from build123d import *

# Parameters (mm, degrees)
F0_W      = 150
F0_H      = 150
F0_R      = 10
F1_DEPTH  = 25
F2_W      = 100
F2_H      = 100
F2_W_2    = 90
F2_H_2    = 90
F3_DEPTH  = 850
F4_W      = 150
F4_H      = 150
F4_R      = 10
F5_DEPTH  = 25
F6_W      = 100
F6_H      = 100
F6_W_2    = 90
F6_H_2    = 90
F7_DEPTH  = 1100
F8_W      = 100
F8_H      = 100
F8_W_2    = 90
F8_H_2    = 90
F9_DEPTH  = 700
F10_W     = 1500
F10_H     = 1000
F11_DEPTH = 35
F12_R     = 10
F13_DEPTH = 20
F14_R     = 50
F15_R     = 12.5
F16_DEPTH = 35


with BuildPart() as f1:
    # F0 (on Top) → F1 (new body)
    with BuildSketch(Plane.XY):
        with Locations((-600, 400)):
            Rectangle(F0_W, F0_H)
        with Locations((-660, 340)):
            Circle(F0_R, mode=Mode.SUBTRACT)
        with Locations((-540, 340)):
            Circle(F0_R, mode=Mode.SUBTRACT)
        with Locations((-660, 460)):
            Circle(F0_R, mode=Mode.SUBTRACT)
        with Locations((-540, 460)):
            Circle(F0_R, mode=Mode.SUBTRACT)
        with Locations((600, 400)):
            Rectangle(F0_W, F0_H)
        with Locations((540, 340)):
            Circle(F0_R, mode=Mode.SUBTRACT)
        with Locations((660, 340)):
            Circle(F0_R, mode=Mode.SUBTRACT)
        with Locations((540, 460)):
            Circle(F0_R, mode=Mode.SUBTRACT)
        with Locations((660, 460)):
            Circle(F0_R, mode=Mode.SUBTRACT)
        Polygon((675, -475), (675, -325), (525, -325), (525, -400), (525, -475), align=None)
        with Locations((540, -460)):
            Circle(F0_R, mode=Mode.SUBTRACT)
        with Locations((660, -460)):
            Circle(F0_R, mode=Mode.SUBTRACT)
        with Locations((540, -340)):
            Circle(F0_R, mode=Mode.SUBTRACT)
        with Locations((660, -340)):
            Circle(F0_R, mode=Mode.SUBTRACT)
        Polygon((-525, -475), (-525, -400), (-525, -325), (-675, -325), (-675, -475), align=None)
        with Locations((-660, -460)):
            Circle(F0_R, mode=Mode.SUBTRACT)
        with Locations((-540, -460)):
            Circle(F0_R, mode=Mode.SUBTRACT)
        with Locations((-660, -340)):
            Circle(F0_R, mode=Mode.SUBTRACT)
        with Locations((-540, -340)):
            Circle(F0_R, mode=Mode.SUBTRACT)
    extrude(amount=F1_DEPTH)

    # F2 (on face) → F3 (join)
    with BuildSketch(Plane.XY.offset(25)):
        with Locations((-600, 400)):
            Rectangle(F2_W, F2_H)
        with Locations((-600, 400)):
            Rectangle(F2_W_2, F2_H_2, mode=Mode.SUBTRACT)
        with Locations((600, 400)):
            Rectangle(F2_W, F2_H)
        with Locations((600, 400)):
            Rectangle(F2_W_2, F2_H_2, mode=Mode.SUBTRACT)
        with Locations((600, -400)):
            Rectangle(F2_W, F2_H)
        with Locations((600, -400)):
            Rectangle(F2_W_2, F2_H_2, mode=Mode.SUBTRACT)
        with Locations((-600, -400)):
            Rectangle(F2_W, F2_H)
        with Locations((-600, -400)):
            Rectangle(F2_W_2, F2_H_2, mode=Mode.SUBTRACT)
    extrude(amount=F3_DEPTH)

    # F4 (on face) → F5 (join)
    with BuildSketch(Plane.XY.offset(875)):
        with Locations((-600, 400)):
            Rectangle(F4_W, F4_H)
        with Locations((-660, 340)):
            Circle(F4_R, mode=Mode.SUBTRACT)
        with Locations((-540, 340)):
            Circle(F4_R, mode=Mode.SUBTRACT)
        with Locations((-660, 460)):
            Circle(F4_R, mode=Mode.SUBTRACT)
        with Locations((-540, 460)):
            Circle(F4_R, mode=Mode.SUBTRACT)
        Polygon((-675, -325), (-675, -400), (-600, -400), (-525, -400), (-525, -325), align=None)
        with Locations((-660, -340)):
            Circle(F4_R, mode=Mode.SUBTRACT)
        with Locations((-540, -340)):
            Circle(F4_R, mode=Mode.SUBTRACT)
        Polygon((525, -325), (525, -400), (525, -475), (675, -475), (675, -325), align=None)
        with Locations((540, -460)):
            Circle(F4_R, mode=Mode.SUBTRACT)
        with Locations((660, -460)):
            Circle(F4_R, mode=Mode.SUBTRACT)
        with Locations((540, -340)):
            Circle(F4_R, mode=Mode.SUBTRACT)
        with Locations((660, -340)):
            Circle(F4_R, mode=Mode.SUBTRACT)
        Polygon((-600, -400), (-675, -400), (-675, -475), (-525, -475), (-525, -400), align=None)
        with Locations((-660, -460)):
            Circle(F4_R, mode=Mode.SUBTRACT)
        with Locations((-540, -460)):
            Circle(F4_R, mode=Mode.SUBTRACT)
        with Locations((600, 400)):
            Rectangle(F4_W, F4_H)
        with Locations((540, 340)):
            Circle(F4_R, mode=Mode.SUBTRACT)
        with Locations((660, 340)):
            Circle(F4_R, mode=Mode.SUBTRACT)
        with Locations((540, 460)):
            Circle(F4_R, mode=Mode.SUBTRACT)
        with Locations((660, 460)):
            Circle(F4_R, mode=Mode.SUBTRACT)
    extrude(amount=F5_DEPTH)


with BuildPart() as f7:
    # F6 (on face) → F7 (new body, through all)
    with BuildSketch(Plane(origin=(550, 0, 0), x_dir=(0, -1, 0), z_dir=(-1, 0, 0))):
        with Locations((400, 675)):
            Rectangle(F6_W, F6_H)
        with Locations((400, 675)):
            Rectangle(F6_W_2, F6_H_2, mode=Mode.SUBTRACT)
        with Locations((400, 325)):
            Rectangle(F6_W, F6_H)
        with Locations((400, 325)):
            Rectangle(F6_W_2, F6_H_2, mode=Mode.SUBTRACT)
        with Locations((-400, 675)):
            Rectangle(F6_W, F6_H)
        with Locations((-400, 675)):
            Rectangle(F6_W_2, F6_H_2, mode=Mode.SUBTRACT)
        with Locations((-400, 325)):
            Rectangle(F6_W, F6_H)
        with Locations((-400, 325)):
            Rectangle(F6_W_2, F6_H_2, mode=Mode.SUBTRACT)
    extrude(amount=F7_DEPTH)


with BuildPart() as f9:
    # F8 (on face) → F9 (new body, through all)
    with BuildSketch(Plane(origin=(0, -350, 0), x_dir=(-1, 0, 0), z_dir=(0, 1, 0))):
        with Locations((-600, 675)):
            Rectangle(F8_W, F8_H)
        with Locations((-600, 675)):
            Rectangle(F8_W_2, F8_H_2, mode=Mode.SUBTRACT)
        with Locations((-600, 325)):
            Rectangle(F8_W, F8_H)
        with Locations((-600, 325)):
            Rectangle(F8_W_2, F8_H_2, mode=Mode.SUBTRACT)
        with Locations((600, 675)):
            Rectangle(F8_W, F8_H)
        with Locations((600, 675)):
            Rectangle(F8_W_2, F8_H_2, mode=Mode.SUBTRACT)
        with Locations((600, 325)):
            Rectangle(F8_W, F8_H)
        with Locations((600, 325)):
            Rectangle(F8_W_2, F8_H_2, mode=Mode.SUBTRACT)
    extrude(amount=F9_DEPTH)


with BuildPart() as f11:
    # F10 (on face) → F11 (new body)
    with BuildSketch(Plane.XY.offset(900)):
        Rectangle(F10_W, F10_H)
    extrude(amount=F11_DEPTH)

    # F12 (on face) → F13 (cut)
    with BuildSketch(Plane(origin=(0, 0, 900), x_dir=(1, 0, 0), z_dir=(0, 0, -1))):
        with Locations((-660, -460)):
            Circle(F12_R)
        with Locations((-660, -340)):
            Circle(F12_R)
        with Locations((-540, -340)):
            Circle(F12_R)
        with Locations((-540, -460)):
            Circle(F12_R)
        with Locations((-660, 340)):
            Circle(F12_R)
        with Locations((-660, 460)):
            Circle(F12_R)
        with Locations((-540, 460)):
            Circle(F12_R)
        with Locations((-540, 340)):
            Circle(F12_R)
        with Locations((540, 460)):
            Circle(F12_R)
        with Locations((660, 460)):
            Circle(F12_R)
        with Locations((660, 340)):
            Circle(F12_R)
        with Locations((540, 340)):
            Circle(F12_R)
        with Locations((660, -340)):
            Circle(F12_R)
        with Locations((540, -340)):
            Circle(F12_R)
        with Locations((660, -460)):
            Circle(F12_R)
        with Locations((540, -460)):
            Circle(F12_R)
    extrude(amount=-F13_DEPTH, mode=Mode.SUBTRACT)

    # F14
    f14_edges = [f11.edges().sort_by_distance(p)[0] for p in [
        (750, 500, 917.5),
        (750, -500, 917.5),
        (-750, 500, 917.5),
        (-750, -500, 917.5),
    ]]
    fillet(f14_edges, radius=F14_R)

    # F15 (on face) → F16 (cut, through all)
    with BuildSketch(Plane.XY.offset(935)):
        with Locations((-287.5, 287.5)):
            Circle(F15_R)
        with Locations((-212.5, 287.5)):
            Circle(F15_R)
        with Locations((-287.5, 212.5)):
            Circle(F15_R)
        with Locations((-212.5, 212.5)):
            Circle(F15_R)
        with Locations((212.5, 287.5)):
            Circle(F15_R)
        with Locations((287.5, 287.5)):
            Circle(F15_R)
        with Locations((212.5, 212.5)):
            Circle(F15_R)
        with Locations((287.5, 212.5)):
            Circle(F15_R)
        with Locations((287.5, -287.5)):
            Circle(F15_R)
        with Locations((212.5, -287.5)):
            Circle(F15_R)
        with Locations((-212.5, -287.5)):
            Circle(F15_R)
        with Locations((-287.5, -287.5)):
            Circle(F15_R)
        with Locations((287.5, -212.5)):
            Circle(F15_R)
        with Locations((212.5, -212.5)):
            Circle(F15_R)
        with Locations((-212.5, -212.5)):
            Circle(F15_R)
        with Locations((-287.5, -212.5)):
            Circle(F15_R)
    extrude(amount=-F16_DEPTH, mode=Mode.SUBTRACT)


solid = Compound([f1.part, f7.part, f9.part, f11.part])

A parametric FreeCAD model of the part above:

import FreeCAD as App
import Part
import Sketcher
from FreeCAD import Vector
Q = App.Units.Quantity


def edges_at(feature, points):
    """Names of the edges that pass closest to the given points."""
    edges = feature.Shape.Edges
    near = lambda p: min(range(len(edges)), key=lambda i: edges[i].distToShape(Part.Vertex(*p))[0])
    return sorted({f"Edge{near(p) + 1}" for p in points})


def add_polygon(sketch, points):
    """Adds a closed chain of lines whose ends are joined by coincident constraints."""
    first, n = sketch.GeometryCount, len(points)
    for a, b in zip(points, points[1:] + points[:1]):
        sketch.addGeometry(Part.LineSegment(App.Vector(*a, 0), App.Vector(*b, 0)), False)
    for i in range(n):
        sketch.addConstraint(Sketcher.Constraint("Coincident", first + i, 2, first + (i + 1) % n, 1))

doc = App.newDocument("Part")
body = doc.addObject("PartDesign::Body", "Body")
body.AllowCompound = True

# Sketch on XY plane
sketch1 = doc.addObject("Sketcher::SketchObject", "Sketch")
body.addObject(sketch1)
sketch1.AttachmentSupport = (doc.XY_Plane, [""])
sketch1.MapMode = "FlatFace"
add_polygon(sketch1, [(-675, 475), (-675, 325), (-525, 325), (-525, 475)])  # lines 0-3
sketch1.addGeometry(Part.Circle(Vector(-660, 340, 0), Vector(0, 0, 1), 10), False)  # 4
sketch1.addGeometry(Part.Circle(Vector(-540, 340, 0), Vector(0, 0, 1), 10), False)  # 5
sketch1.addGeometry(Part.Circle(Vector(-660, 460, 0), Vector(0, 0, 1), 10), False)  # 6
sketch1.addGeometry(Part.Circle(Vector(-540, 460, 0), Vector(0, 0, 1), 10), False)  # 7
add_polygon(sketch1, [(525, 475), (525, 325), (675, 325), (675, 475)])  # lines 8-11
sketch1.addGeometry(Part.Circle(Vector(540, 340, 0), Vector(0, 0, 1), 10), False)  # 12
sketch1.addGeometry(Part.Circle(Vector(660, 340, 0), Vector(0, 0, 1), 10), False)  # 13
sketch1.addGeometry(Part.Circle(Vector(540, 460, 0), Vector(0, 0, 1), 10), False)  # 14
sketch1.addGeometry(Part.Circle(Vector(660, 460, 0), Vector(0, 0, 1), 10), False)  # 15
add_polygon(sketch1, [(675, -475), (675, -325), (525, -325), (525, -475)])  # lines 16-19
sketch1.addGeometry(Part.Circle(Vector(540, -460, 0), Vector(0, 0, 1), 10), False)  # 20
sketch1.addGeometry(Part.Circle(Vector(660, -460, 0), Vector(0, 0, 1), 10), False)  # 21
sketch1.addGeometry(Part.Circle(Vector(540, -340, 0), Vector(0, 0, 1), 10), False)  # 22
sketch1.addGeometry(Part.Circle(Vector(660, -340, 0), Vector(0, 0, 1), 10), False)  # 23
add_polygon(sketch1, [(-525, -475), (-525, -325), (-675, -325), (-675, -475)])  # lines 24-27
sketch1.addGeometry(Part.Circle(Vector(-660, -460, 0), Vector(0, 0, 1), 10), False)  # 28
sketch1.addGeometry(Part.Circle(Vector(-540, -460, 0), Vector(0, 0, 1), 10), False)  # 29
sketch1.addGeometry(Part.Circle(Vector(-660, -340, 0), Vector(0, 0, 1), 10), False)  # 30
sketch1.addGeometry(Part.Circle(Vector(-540, -340, 0), Vector(0, 0, 1), 10), False)  # 31
sketch1.addConstraint(Sketcher.Constraint("Vertical", 0))
sketch1.addConstraint(Sketcher.Constraint("Horizontal", 1))
sketch1.addConstraint(Sketcher.Constraint("Vertical", 2))
sketch1.addConstraint(Sketcher.Constraint("Horizontal", 3))
sketch1.addConstraint(Sketcher.Constraint("Vertical", 8))
sketch1.addConstraint(Sketcher.Constraint("Horizontal", 9))
sketch1.addConstraint(Sketcher.Constraint("Vertical", 10))
sketch1.addConstraint(Sketcher.Constraint("Horizontal", 11))
sketch1.addConstraint(Sketcher.Constraint("Vertical", 16))
sketch1.addConstraint(Sketcher.Constraint("Horizontal", 17))
sketch1.addConstraint(Sketcher.Constraint("Vertical", 18))
sketch1.addConstraint(Sketcher.Constraint("Horizontal", 19))
sketch1.addConstraint(Sketcher.Constraint("Vertical", 24))
sketch1.addConstraint(Sketcher.Constraint("Horizontal", 25))
sketch1.addConstraint(Sketcher.Constraint("Vertical", 26))
sketch1.addConstraint(Sketcher.Constraint("Horizontal", 27))
sketch1.addConstraint(Sketcher.Constraint("Equal", 4, 5))
sketch1.addConstraint(Sketcher.Constraint("Equal", 5, 6))
sketch1.addConstraint(Sketcher.Constraint("Equal", 6, 7))
sketch1.addConstraint(Sketcher.Constraint("Equal", 7, 12))
sketch1.addConstraint(Sketcher.Constraint("Equal", 12, 13))
sketch1.addConstraint(Sketcher.Constraint("Equal", 13, 14))
sketch1.addConstraint(Sketcher.Constraint("Equal", 14, 15))
sketch1.addConstraint(Sketcher.Constraint("Equal", 15, 20))
sketch1.addConstraint(Sketcher.Constraint("Equal", 20, 21))
sketch1.addConstraint(Sketcher.Constraint("Equal", 21, 22))
sketch1.addConstraint(Sketcher.Constraint("Equal", 22, 23))
sketch1.addConstraint(Sketcher.Constraint("Equal", 23, 28))
sketch1.addConstraint(Sketcher.Constraint("Equal", 28, 29))
sketch1.addConstraint(Sketcher.Constraint("Equal", 29, 30))
sketch1.addConstraint(Sketcher.Constraint("Equal", 30, 31))
sketch1.addConstraint(Sketcher.Constraint("Symmetric", 7, 3, 20, 3, -1, 1))
sketch1.addConstraint(Sketcher.Constraint("Symmetric", 6, 3, 21, 3, -1, 1))
sketch1.addConstraint(Sketcher.Constraint("Symmetric", 5, 3, 22, 3, -1, 1))
sketch1.addConstraint(Sketcher.Constraint("Symmetric", 4, 3, 23, 3, -1, 1))
sketch1.addConstraint(Sketcher.Constraint("Symmetric", 15, 3, 28, 3, -1, 1))
sketch1.addConstraint(Sketcher.Constraint("Symmetric", 14, 3, 29, 3, -1, 1))
sketch1.addConstraint(Sketcher.Constraint("Symmetric", 13, 3, 30, 3, -1, 1))
sketch1.addConstraint(Sketcher.Constraint("Symmetric", 12, 3, 31, 3, -1, 1))
sketch1.addConstraint(Sketcher.Constraint("Symmetric", 0, 2, 16, 2, -1, 1))
sketch1.addConstraint(Sketcher.Constraint("Symmetric", 2, 2, 18, 2, -1, 1))
sketch1.addConstraint(Sketcher.Constraint("Symmetric", 8, 2, 24, 2, -1, 1))
sketch1.addConstraint(Sketcher.Constraint("Symmetric", 10, 2, 26, 2, -1, 1))
sketch1.addConstraint(Sketcher.Constraint("Symmetric", 5, 3, 12, 3, -2))
sketch1.addConstraint(Sketcher.Constraint("Symmetric", 4, 3, 13, 3, -2))
sketch1.addConstraint(Sketcher.Constraint("Symmetric", 7, 3, 14, 3, -2))
sketch1.addConstraint(Sketcher.Constraint("Symmetric", 6, 3, 15, 3, -2))
sketch1.addConstraint(Sketcher.Constraint("Symmetric", 1, 2, 8, 2, -2))
sketch1.addConstraint(Sketcher.Constraint("Symmetric", 3, 2, 10, 2, -2))
sketch1.addConstraint(Sketcher.Constraint("Horizontal", 4, 3, 5, 3))
sketch1.addConstraint(Sketcher.Constraint("Horizontal", 6, 3, 7, 3))
sketch1.addConstraint(Sketcher.Constraint("Vertical", 4, 3, 6, 3))
sketch1.addConstraint(Sketcher.Constraint("Vertical", 5, 3, 7, 3))
sketch1.addConstraint(Sketcher.Constraint("Equal", 27, 0))
sketch1.addConstraint(Sketcher.Constraint("Diameter", 4, Q("20 mm")))
sketch1.addConstraint(Sketcher.Constraint("DistanceX", 1, 1, 1, 2, Q("150 mm")))
sketch1.addConstraint(Sketcher.Constraint("DistanceX", 4, 3, -1, 1, Q("660 mm")))
sketch1.addConstraint(Sketcher.Constraint("DistanceY", -1, 1, 4, 3, Q("340 mm")))
sketch1.addConstraint(Sketcher.Constraint("DistanceX", 5, 3, -1, 1, Q("540 mm")))
sketch1.addConstraint(Sketcher.Constraint("DistanceY", -1, 1, 6, 3, Q("460 mm")))
sketch1.addConstraint(Sketcher.Constraint("DistanceX", 0, 2, -1, 1, Q("675 mm")))
sketch1.addConstraint(Sketcher.Constraint("DistanceY", -1, 1, 0, 2, Q("325 mm")))
pad1 = doc.addObject("PartDesign::Pad", "Pad")
body.addObject(pad1)
pad1.Profile = sketch1
pad1.Length = 25

# Sketch on XY plane
sketch2 = doc.addObject("Sketcher::SketchObject", "Sketch001")
body.addObject(sketch2)
sketch2.AttachmentSupport = (doc.XY_Plane, [""])
sketch2.MapMode = "FlatFace"
sketch2.AttachmentOffset = App.Placement(Vector(0, 0, 25), App.Rotation())
add_polygon(sketch2, [(-650, 450), (-650, 350), (-550, 350), (-550, 450)])  # lines 0-3
add_polygon(sketch2, [(-555, 355), (-645, 355), (-645, 445), (-555, 445)])  # lines 4-7
add_polygon(sketch2, [(550, 450), (550, 350), (650, 350), (650, 450)])  # lines 8-11
add_polygon(sketch2, [(645, 355), (555, 355), (555, 445), (645, 445)])  # lines 12-15
add_polygon(sketch2, [(550, -350), (550, -450), (650, -450), (650, -350)])  # lines 16-19
add_polygon(sketch2, [(645, -445), (555, -445), (555, -355), (645, -355)])  # lines 20-23
add_polygon(sketch2, [(-650, -350), (-650, -450), (-550, -450), (-550, -350)])  # lines 24-27
add_polygon(sketch2, [(-555, -445), (-645, -445), (-645, -355), (-555, -355)])  # lines 28-31
sketch2.addConstraint(Sketcher.Constraint("Vertical", 0))
sketch2.addConstraint(Sketcher.Constraint("Horizontal", 1))
sketch2.addConstraint(Sketcher.Constraint("Vertical", 2))
sketch2.addConstraint(Sketcher.Constraint("Horizontal", 3))
sketch2.addConstraint(Sketcher.Constraint("Horizontal", 4))
sketch2.addConstraint(Sketcher.Constraint("Vertical", 5))
sketch2.addConstraint(Sketcher.Constraint("Horizontal", 6))
sketch2.addConstraint(Sketcher.Constraint("Vertical", 7))
sketch2.addConstraint(Sketcher.Constraint("Vertical", 8))
sketch2.addConstraint(Sketcher.Constraint("Horizontal", 9))
sketch2.addConstraint(Sketcher.Constraint("Vertical", 10))
sketch2.addConstraint(Sketcher.Constraint("Horizontal", 11))
sketch2.addConstraint(Sketcher.Constraint("Horizontal", 12))
sketch2.addConstraint(Sketcher.Constraint("Vertical", 13))
sketch2.addConstraint(Sketcher.Constraint("Horizontal", 14))
sketch2.addConstraint(Sketcher.Constraint("Vertical", 15))
sketch2.addConstraint(Sketcher.Constraint("Vertical", 16))
sketch2.addConstraint(Sketcher.Constraint("Horizontal", 17))
sketch2.addConstraint(Sketcher.Constraint("Vertical", 18))
sketch2.addConstraint(Sketcher.Constraint("Horizontal", 19))
sketch2.addConstraint(Sketcher.Constraint("Horizontal", 20))
sketch2.addConstraint(Sketcher.Constraint("Vertical", 21))
sketch2.addConstraint(Sketcher.Constraint("Horizontal", 22))
sketch2.addConstraint(Sketcher.Constraint("Vertical", 23))
sketch2.addConstraint(Sketcher.Constraint("Vertical", 24))
sketch2.addConstraint(Sketcher.Constraint("Horizontal", 25))
sketch2.addConstraint(Sketcher.Constraint("Vertical", 26))
sketch2.addConstraint(Sketcher.Constraint("Horizontal", 27))
sketch2.addConstraint(Sketcher.Constraint("Horizontal", 28))
sketch2.addConstraint(Sketcher.Constraint("Vertical", 29))
sketch2.addConstraint(Sketcher.Constraint("Horizontal", 30))
sketch2.addConstraint(Sketcher.Constraint("Vertical", 31))
sketch2.addConstraint(Sketcher.Constraint("Symmetric", 2, 2, 16, 2, -1, 1))
sketch2.addConstraint(Sketcher.Constraint("Symmetric", 0, 2, 18, 2, -1, 1))
sketch2.addConstraint(Sketcher.Constraint("Symmetric", 6, 2, 20, 2, -1, 1))
sketch2.addConstraint(Sketcher.Constraint("Symmetric", 4, 2, 22, 2, -1, 1))
sketch2.addConstraint(Sketcher.Constraint("Symmetric", 10, 2, 24, 2, -1, 1))
sketch2.addConstraint(Sketcher.Constraint("Symmetric", 8, 2, 26, 2, -1, 1))
sketch2.addConstraint(Sketcher.Constraint("Symmetric", 14, 2, 28, 2, -1, 1))
sketch2.addConstraint(Sketcher.Constraint("Symmetric", 12, 2, 30, 2, -1, 1))
sketch2.addConstraint(Sketcher.Constraint("Symmetric", 1, 2, 8, 2, -2))
sketch2.addConstraint(Sketcher.Constraint("Symmetric", 3, 2, 10, 2, -2))
sketch2.addConstraint(Sketcher.Constraint("Symmetric", 7, 2, 12, 2, -2))
sketch2.addConstraint(Sketcher.Constraint("Symmetric", 5, 2, 14, 2, -2))
sketch2.addConstraint(Sketcher.Constraint("Equal", 27, 0))
sketch2.addConstraint(Sketcher.Constraint("Equal", 30, 5))
sketch2.addConstraint(Sketcher.Constraint("DistanceX", 1, 1, 1, 2, Q("100 mm")))
sketch2.addConstraint(Sketcher.Constraint("DistanceX", 4, 2, 4, 1, Q("90 mm")))
sketch2.addConstraint(Sketcher.Constraint("DistanceX", 0, 2, -1, 1, Q("650 mm")))
sketch2.addConstraint(Sketcher.Constraint("DistanceY", -1, 1, 0, 2, Q("350 mm")))
sketch2.addConstraint(Sketcher.Constraint("DistanceX", 4, 2, -1, 1, Q("645 mm")))
sketch2.addConstraint(Sketcher.Constraint("DistanceY", -1, 1, 4, 2, Q("355 mm")))
pad2 = doc.addObject("PartDesign::Pad", "Pad001")
body.addObject(pad2)
pad2.Profile = sketch2
pad2.Length = 850

# Sketch on XY plane
sketch3 = doc.addObject("Sketcher::SketchObject", "Sketch002")
body.addObject(sketch3)
sketch3.AttachmentSupport = (doc.XY_Plane, [""])
sketch3.MapMode = "FlatFace"
sketch3.AttachmentOffset = App.Placement(Vector(0, 0, 875), App.Rotation())
add_polygon(sketch3, [(-675, 475), (-675, 325), (-525, 325), (-525, 475)])  # lines 0-3
sketch3.addGeometry(Part.Circle(Vector(-660, 340, 0), Vector(0, 0, 1), 10), False)  # 4
sketch3.addGeometry(Part.Circle(Vector(-540, 340, 0), Vector(0, 0, 1), 10), False)  # 5
sketch3.addGeometry(Part.Circle(Vector(-660, 460, 0), Vector(0, 0, 1), 10), False)  # 6
sketch3.addGeometry(Part.Circle(Vector(-540, 460, 0), Vector(0, 0, 1), 10), False)  # 7
add_polygon(sketch3, [(-675, -325), (-675, -475), (-525, -475), (-525, -325)])  # lines 8-11
sketch3.addGeometry(Part.Circle(Vector(-660, -460, 0), Vector(0, 0, 1), 10), False)  # 12
sketch3.addGeometry(Part.Circle(Vector(-540, -460, 0), Vector(0, 0, 1), 10), False)  # 13
sketch3.addGeometry(Part.Circle(Vector(-660, -340, 0), Vector(0, 0, 1), 10), False)  # 14
sketch3.addGeometry(Part.Circle(Vector(-540, -340, 0), Vector(0, 0, 1), 10), False)  # 15
add_polygon(sketch3, [(525, -325), (525, -475), (675, -475), (675, -325)])  # lines 16-19
sketch3.addGeometry(Part.Circle(Vector(540, -460, 0), Vector(0, 0, 1), 10), False)  # 20
sketch3.addGeometry(Part.Circle(Vector(660, -460, 0), Vector(0, 0, 1), 10), False)  # 21
sketch3.addGeometry(Part.Circle(Vector(540, -340, 0), Vector(0, 0, 1), 10), False)  # 22
sketch3.addGeometry(Part.Circle(Vector(660, -340, 0), Vector(0, 0, 1), 10), False)  # 23
add_polygon(sketch3, [(525, 475), (525, 325), (675, 325), (675, 475)])  # lines 24-27
sketch3.addGeometry(Part.Circle(Vector(540, 340, 0), Vector(0, 0, 1), 10), False)  # 28
sketch3.addGeometry(Part.Circle(Vector(660, 340, 0), Vector(0, 0, 1), 10), False)  # 29
sketch3.addGeometry(Part.Circle(Vector(540, 460, 0), Vector(0, 0, 1), 10), False)  # 30
sketch3.addGeometry(Part.Circle(Vector(660, 460, 0), Vector(0, 0, 1), 10), False)  # 31
sketch3.addConstraint(Sketcher.Constraint("Vertical", 0))
sketch3.addConstraint(Sketcher.Constraint("Horizontal", 1))
sketch3.addConstraint(Sketcher.Constraint("Vertical", 2))
sketch3.addConstraint(Sketcher.Constraint("Horizontal", 3))
sketch3.addConstraint(Sketcher.Constraint("Vertical", 8))
sketch3.addConstraint(Sketcher.Constraint("Horizontal", 9))
sketch3.addConstraint(Sketcher.Constraint("Vertical", 10))
sketch3.addConstraint(Sketcher.Constraint("Horizontal", 11))
sketch3.addConstraint(Sketcher.Constraint("Vertical", 16))
sketch3.addConstraint(Sketcher.Constraint("Horizontal", 17))
sketch3.addConstraint(Sketcher.Constraint("Vertical", 18))
sketch3.addConstraint(Sketcher.Constraint("Horizontal", 19))
sketch3.addConstraint(Sketcher.Constraint("Vertical", 24))
sketch3.addConstraint(Sketcher.Constraint("Horizontal", 25))
sketch3.addConstraint(Sketcher.Constraint("Vertical", 26))
sketch3.addConstraint(Sketcher.Constraint("Horizontal", 27))
sketch3.addConstraint(Sketcher.Constraint("Equal", 4, 5))
sketch3.addConstraint(Sketcher.Constraint("Equal", 5, 6))
sketch3.addConstraint(Sketcher.Constraint("Equal", 6, 7))
sketch3.addConstraint(Sketcher.Constraint("Equal", 7, 12))
sketch3.addConstraint(Sketcher.Constraint("Equal", 12, 13))
sketch3.addConstraint(Sketcher.Constraint("Equal", 13, 14))
sketch3.addConstraint(Sketcher.Constraint("Equal", 14, 15))
sketch3.addConstraint(Sketcher.Constraint("Equal", 15, 20))
sketch3.addConstraint(Sketcher.Constraint("Equal", 20, 21))
sketch3.addConstraint(Sketcher.Constraint("Equal", 21, 22))
sketch3.addConstraint(Sketcher.Constraint("Equal", 22, 23))
sketch3.addConstraint(Sketcher.Constraint("Equal", 23, 28))
sketch3.addConstraint(Sketcher.Constraint("Equal", 28, 29))
sketch3.addConstraint(Sketcher.Constraint("Equal", 29, 30))
sketch3.addConstraint(Sketcher.Constraint("Equal", 30, 31))
sketch3.addConstraint(Sketcher.Constraint("Symmetric", 7, 3, 20, 3, -1, 1))
sketch3.addConstraint(Sketcher.Constraint("Symmetric", 6, 3, 21, 3, -1, 1))
sketch3.addConstraint(Sketcher.Constraint("Symmetric", 5, 3, 22, 3, -1, 1))
sketch3.addConstraint(Sketcher.Constraint("Symmetric", 4, 3, 23, 3, -1, 1))
sketch3.addConstraint(Sketcher.Constraint("Symmetric", 15, 3, 28, 3, -1, 1))
sketch3.addConstraint(Sketcher.Constraint("Symmetric", 14, 3, 29, 3, -1, 1))
sketch3.addConstraint(Sketcher.Constraint("Symmetric", 13, 3, 30, 3, -1, 1))
sketch3.addConstraint(Sketcher.Constraint("Symmetric", 12, 3, 31, 3, -1, 1))
sketch3.addConstraint(Sketcher.Constraint("Symmetric", 2, 2, 16, 2, -1, 1))
sketch3.addConstraint(Sketcher.Constraint("Symmetric", 0, 2, 18, 2, -1, 1))
sketch3.addConstraint(Sketcher.Constraint("Symmetric", 10, 2, 24, 2, -1, 1))
sketch3.addConstraint(Sketcher.Constraint("Symmetric", 8, 2, 26, 2, -1, 1))
sketch3.addConstraint(Sketcher.Constraint("Symmetric", 13, 3, 20, 3, -2))
sketch3.addConstraint(Sketcher.Constraint("Symmetric", 12, 3, 21, 3, -2))
sketch3.addConstraint(Sketcher.Constraint("Symmetric", 15, 3, 22, 3, -2))
sketch3.addConstraint(Sketcher.Constraint("Symmetric", 14, 3, 23, 3, -2))
sketch3.addConstraint(Sketcher.Constraint("Symmetric", 9, 2, 16, 2, -2))
sketch3.addConstraint(Sketcher.Constraint("Symmetric", 11, 2, 18, 2, -2))
sketch3.addConstraint(Sketcher.Constraint("Horizontal", 4, 3, 5, 3))
sketch3.addConstraint(Sketcher.Constraint("Horizontal", 6, 3, 7, 3))
sketch3.addConstraint(Sketcher.Constraint("Vertical", 4, 3, 6, 3))
sketch3.addConstraint(Sketcher.Constraint("Vertical", 5, 3, 7, 3))
sketch3.addConstraint(Sketcher.Constraint("Equal", 27, 0))
sketch3.addConstraint(Sketcher.Constraint("Diameter", 4, Q("20 mm")))
sketch3.addConstraint(Sketcher.Constraint("DistanceX", 1, 1, 1, 2, Q("150 mm")))
sketch3.addConstraint(Sketcher.Constraint("DistanceX", 4, 3, -1, 1, Q("660 mm")))
sketch3.addConstraint(Sketcher.Constraint("DistanceY", -1, 1, 4, 3, Q("340 mm")))
sketch3.addConstraint(Sketcher.Constraint("DistanceX", 5, 3, -1, 1, Q("540 mm")))
sketch3.addConstraint(Sketcher.Constraint("DistanceY", -1, 1, 6, 3, Q("460 mm")))
sketch3.addConstraint(Sketcher.Constraint("DistanceX", 0, 2, -1, 1, Q("675 mm")))
sketch3.addConstraint(Sketcher.Constraint("DistanceY", -1, 1, 0, 2, Q("325 mm")))
pad3 = doc.addObject("PartDesign::Pad", "Pad002")
body.addObject(pad3)
pad3.Profile = sketch3
pad3.Length = 25
body2 = doc.addObject("PartDesign::Body", "Body001")
body2.AllowCompound = True

# Sketch on YZ plane
sketch4 = doc.addObject("Sketcher::SketchObject", "Sketch003")
body2.addObject(sketch4)
sketch4.AttachmentSupport = (doc.getObject("YZ_Plane001"), [""])
sketch4.MapMode = "FlatFace"
sketch4.AttachmentOffset = App.Placement(Vector(0, 0, 550), App.Rotation())
add_polygon(sketch4, [(-350, 725), (-350, 625), (-450, 625), (-450, 725)])  # lines 0-3
add_polygon(sketch4, [(-445, 630), (-355, 630), (-355, 720), (-445, 720)])  # lines 4-7
add_polygon(sketch4, [(-350, 375), (-350, 275), (-450, 275), (-450, 375)])  # lines 8-11
add_polygon(sketch4, [(-445, 280), (-355, 280), (-355, 370), (-445, 370)])  # lines 12-15
add_polygon(sketch4, [(450, 725), (450, 625), (350, 625), (350, 725)])  # lines 16-19
add_polygon(sketch4, [(355, 630), (445, 630), (445, 720), (355, 720)])  # lines 20-23
add_polygon(sketch4, [(450, 375), (450, 275), (350, 275), (350, 375)])  # lines 24-27
add_polygon(sketch4, [(355, 280), (445, 280), (445, 370), (355, 370)])  # lines 28-31
sketch4.addConstraint(Sketcher.Constraint("Vertical", 0))
sketch4.addConstraint(Sketcher.Constraint("Horizontal", 1))
sketch4.addConstraint(Sketcher.Constraint("Vertical", 2))
sketch4.addConstraint(Sketcher.Constraint("Horizontal", 3))
sketch4.addConstraint(Sketcher.Constraint("Horizontal", 4))
sketch4.addConstraint(Sketcher.Constraint("Vertical", 5))
sketch4.addConstraint(Sketcher.Constraint("Horizontal", 6))
sketch4.addConstraint(Sketcher.Constraint("Vertical", 7))
sketch4.addConstraint(Sketcher.Constraint("Vertical", 8))
sketch4.addConstraint(Sketcher.Constraint("Horizontal", 9))
sketch4.addConstraint(Sketcher.Constraint("Vertical", 10))
sketch4.addConstraint(Sketcher.Constraint("Horizontal", 11))
sketch4.addConstraint(Sketcher.Constraint("Horizontal", 12))
sketch4.addConstraint(Sketcher.Constraint("Vertical", 13))
sketch4.addConstraint(Sketcher.Constraint("Horizontal", 14))
sketch4.addConstraint(Sketcher.Constraint("Vertical", 15))
sketch4.addConstraint(Sketcher.Constraint("Vertical", 16))
sketch4.addConstraint(Sketcher.Constraint("Horizontal", 17))
sketch4.addConstraint(Sketcher.Constraint("Vertical", 18))
sketch4.addConstraint(Sketcher.Constraint("Horizontal", 19))
sketch4.addConstraint(Sketcher.Constraint("Horizontal", 20))
sketch4.addConstraint(Sketcher.Constraint("Vertical", 21))
sketch4.addConstraint(Sketcher.Constraint("Horizontal", 22))
sketch4.addConstraint(Sketcher.Constraint("Vertical", 23))
sketch4.addConstraint(Sketcher.Constraint("Vertical", 24))
sketch4.addConstraint(Sketcher.Constraint("Horizontal", 25))
sketch4.addConstraint(Sketcher.Constraint("Vertical", 26))
sketch4.addConstraint(Sketcher.Constraint("Horizontal", 27))
sketch4.addConstraint(Sketcher.Constraint("Horizontal", 28))
sketch4.addConstraint(Sketcher.Constraint("Vertical", 29))
sketch4.addConstraint(Sketcher.Constraint("Horizontal", 30))
sketch4.addConstraint(Sketcher.Constraint("Vertical", 31))
sketch4.addConstraint(Sketcher.Constraint("Symmetric", 1, 2, 16, 2, -2))
sketch4.addConstraint(Sketcher.Constraint("Symmetric", 3, 2, 18, 2, -2))
sketch4.addConstraint(Sketcher.Constraint("Symmetric", 7, 2, 20, 2, -2))
sketch4.addConstraint(Sketcher.Constraint("Symmetric", 5, 2, 22, 2, -2))
sketch4.addConstraint(Sketcher.Constraint("Symmetric", 9, 2, 24, 2, -2))
sketch4.addConstraint(Sketcher.Constraint("Symmetric", 11, 2, 26, 2, -2))
sketch4.addConstraint(Sketcher.Constraint("Symmetric", 15, 2, 28, 2, -2))
sketch4.addConstraint(Sketcher.Constraint("Symmetric", 13, 2, 30, 2, -2))
sketch4.addConstraint(Sketcher.Constraint("Vertical", 3, 2, 8, 2))
sketch4.addConstraint(Sketcher.Constraint("Vertical", 2, 2, 9, 2))
sketch4.addConstraint(Sketcher.Constraint("Vertical", 5, 2, 12, 2))
sketch4.addConstraint(Sketcher.Constraint("Vertical", 7, 2, 14, 2))
sketch4.addConstraint(Sketcher.Constraint("Equal", 27, 0))
sketch4.addConstraint(Sketcher.Constraint("Equal", 30, 5))
sketch4.addConstraint(Sketcher.Constraint("Equal", 2, 8))
sketch4.addConstraint(Sketcher.Constraint("Equal", 7, 13))
sketch4.addConstraint(Sketcher.Constraint("DistanceX", 1, 2, 1, 1, Q("100 mm")))
sketch4.addConstraint(Sketcher.Constraint("DistanceX", 4, 1, 4, 2, Q("90 mm")))
sketch4.addConstraint(Sketcher.Constraint("DistanceX", 0, 2, -1, 1, Q("350 mm")))
sketch4.addConstraint(Sketcher.Constraint("DistanceY", -1, 1, 0, 2, Q("625 mm")))
sketch4.addConstraint(Sketcher.Constraint("DistanceX", 4, 2, -1, 1, Q("355 mm")))
sketch4.addConstraint(Sketcher.Constraint("DistanceY", -1, 1, 4, 2, Q("630 mm")))
sketch4.addConstraint(Sketcher.Constraint("DistanceY", -1, 1, 8, 2, Q("275 mm")))
sketch4.addConstraint(Sketcher.Constraint("DistanceY", -1, 1, 12, 2, Q("280 mm")))
pad4 = doc.addObject("PartDesign::Pad", "Pad003")
body2.addObject(pad4)
pad4.Profile = sketch4
pad4.Length = 1100
pad4.Reversed = True
body3 = doc.addObject("PartDesign::Body", "Body002")
body3.AllowCompound = True

# Sketch on XZ plane
sketch5 = doc.addObject("Sketcher::SketchObject", "Sketch004")
body3.addObject(sketch5)
sketch5.AttachmentSupport = (doc.getObject("XZ_Plane002"), [""])
sketch5.MapMode = "FlatFace"
sketch5.AttachmentOffset = App.Placement(Vector(0, 0, 350), App.Rotation())
add_polygon(sketch5, [(650, 725), (650, 625), (550, 625), (550, 725)])  # lines 0-3
add_polygon(sketch5, [(555, 630), (645, 630), (645, 720), (555, 720)])  # lines 4-7
add_polygon(sketch5, [(650, 375), (650, 275), (550, 275), (550, 375)])  # lines 8-11
add_polygon(sketch5, [(555, 280), (645, 280), (645, 370), (555, 370)])  # lines 12-15
add_polygon(sketch5, [(-550, 725), (-550, 625), (-650, 625), (-650, 725)])  # lines 16-19
add_polygon(sketch5, [(-645, 630), (-555, 630), (-555, 720), (-645, 720)])  # lines 20-23
add_polygon(sketch5, [(-550, 375), (-550, 275), (-650, 275), (-650, 375)])  # lines 24-27
add_polygon(sketch5, [(-645, 280), (-555, 280), (-555, 370), (-645, 370)])  # lines 28-31
sketch5.addConstraint(Sketcher.Constraint("Vertical", 0))
sketch5.addConstraint(Sketcher.Constraint("Horizontal", 1))
sketch5.addConstraint(Sketcher.Constraint("Vertical", 2))
sketch5.addConstraint(Sketcher.Constraint("Horizontal", 3))
sketch5.addConstraint(Sketcher.Constraint("Horizontal", 4))
sketch5.addConstraint(Sketcher.Constraint("Vertical", 5))
sketch5.addConstraint(Sketcher.Constraint("Horizontal", 6))
sketch5.addConstraint(Sketcher.Constraint("Vertical", 7))
sketch5.addConstraint(Sketcher.Constraint("Vertical", 8))
sketch5.addConstraint(Sketcher.Constraint("Horizontal", 9))
sketch5.addConstraint(Sketcher.Constraint("Vertical", 10))
sketch5.addConstraint(Sketcher.Constraint("Horizontal", 11))
sketch5.addConstraint(Sketcher.Constraint("Horizontal", 12))
sketch5.addConstraint(Sketcher.Constraint("Vertical", 13))
sketch5.addConstraint(Sketcher.Constraint("Horizontal", 14))
sketch5.addConstraint(Sketcher.Constraint("Vertical", 15))
sketch5.addConstraint(Sketcher.Constraint("Vertical", 16))
sketch5.addConstraint(Sketcher.Constraint("Horizontal", 17))
sketch5.addConstraint(Sketcher.Constraint("Vertical", 18))
sketch5.addConstraint(Sketcher.Constraint("Horizontal", 19))
sketch5.addConstraint(Sketcher.Constraint("Horizontal", 20))
sketch5.addConstraint(Sketcher.Constraint("Vertical", 21))
sketch5.addConstraint(Sketcher.Constraint("Horizontal", 22))
sketch5.addConstraint(Sketcher.Constraint("Vertical", 23))
sketch5.addConstraint(Sketcher.Constraint("Vertical", 24))
sketch5.addConstraint(Sketcher.Constraint("Horizontal", 25))
sketch5.addConstraint(Sketcher.Constraint("Vertical", 26))
sketch5.addConstraint(Sketcher.Constraint("Horizontal", 27))
sketch5.addConstraint(Sketcher.Constraint("Horizontal", 28))
sketch5.addConstraint(Sketcher.Constraint("Vertical", 29))
sketch5.addConstraint(Sketcher.Constraint("Horizontal", 30))
sketch5.addConstraint(Sketcher.Constraint("Vertical", 31))
sketch5.addConstraint(Sketcher.Constraint("Symmetric", 1, 2, 16, 2, -2))
sketch5.addConstraint(Sketcher.Constraint("Symmetric", 3, 2, 18, 2, -2))
sketch5.addConstraint(Sketcher.Constraint("Symmetric", 7, 2, 20, 2, -2))
sketch5.addConstraint(Sketcher.Constraint("Symmetric", 5, 2, 22, 2, -2))
sketch5.addConstraint(Sketcher.Constraint("Symmetric", 9, 2, 24, 2, -2))
sketch5.addConstraint(Sketcher.Constraint("Symmetric", 11, 2, 26, 2, -2))
sketch5.addConstraint(Sketcher.Constraint("Symmetric", 15, 2, 28, 2, -2))
sketch5.addConstraint(Sketcher.Constraint("Symmetric", 13, 2, 30, 2, -2))
sketch5.addConstraint(Sketcher.Constraint("Vertical", 3, 2, 8, 2))
sketch5.addConstraint(Sketcher.Constraint("Vertical", 2, 2, 9, 2))
sketch5.addConstraint(Sketcher.Constraint("Vertical", 5, 2, 12, 2))
sketch5.addConstraint(Sketcher.Constraint("Vertical", 7, 2, 14, 2))
sketch5.addConstraint(Sketcher.Constraint("Equal", 27, 0))
sketch5.addConstraint(Sketcher.Constraint("Equal", 30, 5))
sketch5.addConstraint(Sketcher.Constraint("Equal", 2, 8))
sketch5.addConstraint(Sketcher.Constraint("Equal", 7, 13))
sketch5.addConstraint(Sketcher.Constraint("DistanceX", 1, 2, 1, 1, Q("100 mm")))
sketch5.addConstraint(Sketcher.Constraint("DistanceX", 4, 1, 4, 2, Q("90 mm")))
sketch5.addConstraint(Sketcher.Constraint("DistanceX", -1, 1, 0, 2, Q("650 mm")))
sketch5.addConstraint(Sketcher.Constraint("DistanceY", -1, 1, 0, 2, Q("625 mm")))
sketch5.addConstraint(Sketcher.Constraint("DistanceX", -1, 1, 4, 2, Q("645 mm")))
sketch5.addConstraint(Sketcher.Constraint("DistanceY", -1, 1, 4, 2, Q("630 mm")))
sketch5.addConstraint(Sketcher.Constraint("DistanceY", -1, 1, 8, 2, Q("275 mm")))
sketch5.addConstraint(Sketcher.Constraint("DistanceY", -1, 1, 12, 2, Q("280 mm")))
pad5 = doc.addObject("PartDesign::Pad", "Pad004")
body3.addObject(pad5)
pad5.Profile = sketch5
pad5.Length = 700
pad5.Reversed = True
body4 = doc.addObject("PartDesign::Body", "Body003")

# Sketch on XY plane
sketch6 = doc.addObject("Sketcher::SketchObject", "Sketch005")
body4.addObject(sketch6)
sketch6.AttachmentSupport = (doc.getObject("XY_Plane003"), [""])
sketch6.MapMode = "FlatFace"
sketch6.AttachmentOffset = App.Placement(Vector(0, 0, 900), App.Rotation())
add_polygon(sketch6, [(-750, 500), (-750, -500), (750, -500), (750, 500)])  # lines 0-3
sketch6.addConstraint(Sketcher.Constraint("Vertical", 0))
sketch6.addConstraint(Sketcher.Constraint("Horizontal", 1))
sketch6.addConstraint(Sketcher.Constraint("Vertical", 2))
sketch6.addConstraint(Sketcher.Constraint("Horizontal", 3))
sketch6.addConstraint(Sketcher.Constraint("Symmetric", 0, 2, 2, 2, -1, 1))
sketch6.addConstraint(Sketcher.Constraint("DistanceX", 1, 1, 1, 2, Q("1500 mm")))
sketch6.addConstraint(Sketcher.Constraint("DistanceY", 0, 2, 0, 1, Q("1000 mm")))
pad6 = doc.addObject("PartDesign::Pad", "Pad005")
body4.addObject(pad6)
pad6.Profile = sketch6
pad6.Length = 35

# Sketch on XY plane
sketch7 = doc.addObject("Sketcher::SketchObject", "Sketch006")
body4.addObject(sketch7)
sketch7.AttachmentSupport = (doc.getObject("XY_Plane003"), [""])
sketch7.MapMode = "FlatFace"
sketch7.AttachmentOffset = App.Placement(Vector(0, 0, 900), App.Rotation())
sketch7.addGeometry(Part.Circle(Vector(-660, 460, 0), Vector(0, 0, 1), 10), False)
sketch7.addGeometry(Part.Circle(Vector(-660, 340, 0), Vector(0, 0, 1), 10), False)
sketch7.addGeometry(Part.Circle(Vector(-540, 340, 0), Vector(0, 0, 1), 10), False)
sketch7.addGeometry(Part.Circle(Vector(-540, 460, 0), Vector(0, 0, 1), 10), False)
sketch7.addGeometry(Part.Circle(Vector(-660, -340, 0), Vector(0, 0, 1), 10), False)
sketch7.addGeometry(Part.Circle(Vector(-660, -460, 0), Vector(0, 0, 1), 10), False)
sketch7.addGeometry(Part.Circle(Vector(-540, -460, 0), Vector(0, 0, 1), 10), False)
sketch7.addGeometry(Part.Circle(Vector(-540, -340, 0), Vector(0, 0, 1), 10), False)
sketch7.addGeometry(Part.Circle(Vector(540, -460, 0), Vector(0, 0, 1), 10), False)
sketch7.addGeometry(Part.Circle(Vector(660, -460, 0), Vector(0, 0, 1), 10), False)
sketch7.addGeometry(Part.Circle(Vector(660, -340, 0), Vector(0, 0, 1), 10), False)
sketch7.addGeometry(Part.Circle(Vector(540, -340, 0), Vector(0, 0, 1), 10), False)
sketch7.addGeometry(Part.Circle(Vector(660, 340, 0), Vector(0, 0, 1), 10), False)
sketch7.addGeometry(Part.Circle(Vector(540, 340, 0), Vector(0, 0, 1), 10), False)
sketch7.addGeometry(Part.Circle(Vector(660, 460, 0), Vector(0, 0, 1), 10), False)
sketch7.addGeometry(Part.Circle(Vector(540, 460, 0), Vector(0, 0, 1), 10), False)
sketch7.addConstraint(Sketcher.Constraint("Equal", 0, 1))
sketch7.addConstraint(Sketcher.Constraint("Equal", 1, 2))
sketch7.addConstraint(Sketcher.Constraint("Equal", 2, 3))
sketch7.addConstraint(Sketcher.Constraint("Equal", 3, 4))
sketch7.addConstraint(Sketcher.Constraint("Equal", 4, 5))
sketch7.addConstraint(Sketcher.Constraint("Equal", 5, 6))
sketch7.addConstraint(Sketcher.Constraint("Equal", 6, 7))
sketch7.addConstraint(Sketcher.Constraint("Equal", 7, 8))
sketch7.addConstraint(Sketcher.Constraint("Equal", 8, 9))
sketch7.addConstraint(Sketcher.Constraint("Equal", 9, 10))
sketch7.addConstraint(Sketcher.Constraint("Equal", 10, 11))
sketch7.addConstraint(Sketcher.Constraint("Equal", 11, 12))
sketch7.addConstraint(Sketcher.Constraint("Equal", 12, 13))
sketch7.addConstraint(Sketcher.Constraint("Equal", 13, 14))
sketch7.addConstraint(Sketcher.Constraint("Equal", 14, 15))
sketch7.addConstraint(Sketcher.Constraint("Symmetric", 3, 3, 8, 3, -1, 1))
sketch7.addConstraint(Sketcher.Constraint("Symmetric", 0, 3, 9, 3, -1, 1))
sketch7.addConstraint(Sketcher.Constraint("Symmetric", 1, 3, 10, 3, -1, 1))
sketch7.addConstraint(Sketcher.Constraint("Symmetric", 2, 3, 11, 3, -1, 1))
sketch7.addConstraint(Sketcher.Constraint("Symmetric", 4, 3, 12, 3, -1, 1))
sketch7.addConstraint(Sketcher.Constraint("Symmetric", 7, 3, 13, 3, -1, 1))
sketch7.addConstraint(Sketcher.Constraint("Symmetric", 5, 3, 14, 3, -1, 1))
sketch7.addConstraint(Sketcher.Constraint("Symmetric", 6, 3, 15, 3, -1, 1))
sketch7.addConstraint(Sketcher.Constraint("Symmetric", 6, 3, 8, 3, -2))
sketch7.addConstraint(Sketcher.Constraint("Symmetric", 5, 3, 9, 3, -2))
sketch7.addConstraint(Sketcher.Constraint("Symmetric", 4, 3, 10, 3, -2))
sketch7.addConstraint(Sketcher.Constraint("Symmetric", 7, 3, 11, 3, -2))
sketch7.addConstraint(Sketcher.Constraint("Horizontal", 1, 3, 2, 3))
sketch7.addConstraint(Sketcher.Constraint("Horizontal", 0, 3, 3, 3))
sketch7.addConstraint(Sketcher.Constraint("Vertical", 0, 3, 1, 3))
sketch7.addConstraint(Sketcher.Constraint("Vertical", 2, 3, 3, 3))
sketch7.addConstraint(Sketcher.Constraint("Diameter", 0, Q("20 mm")))
sketch7.addConstraint(Sketcher.Constraint("DistanceX", 0, 3, -1, 1, Q("660 mm")))
sketch7.addConstraint(Sketcher.Constraint("DistanceY", -1, 1, 0, 3, Q("460 mm")))
sketch7.addConstraint(Sketcher.Constraint("DistanceY", -1, 1, 1, 3, Q("340 mm")))
sketch7.addConstraint(Sketcher.Constraint("DistanceX", 2, 3, -1, 1, Q("540 mm")))
pocket1 = doc.addObject("PartDesign::Pocket", "Pocket")
body4.addObject(pocket1)
pocket1.Profile = sketch7
pocket1.Length = 20
pocket1.Reversed = True
doc.recompute()

fillet = doc.addObject("PartDesign::Fillet", "Fillet")
body4.addObject(fillet)
fillet.Base = (pocket1, edges_at(pocket1, [
    (750, 500, 917.5),
    (750, -500, 917.5),
    (-750, 500, 917.5),
    (-750, -500, 917.5),
]))
fillet.Radius = 50

# Sketch on XY plane
sketch8 = doc.addObject("Sketcher::SketchObject", "Sketch007")
body4.addObject(sketch8)
sketch8.AttachmentSupport = (doc.getObject("XY_Plane003"), [""])
sketch8.MapMode = "FlatFace"
sketch8.AttachmentOffset = App.Placement(Vector(0, 0, 935), App.Rotation())
sketch8.addGeometry(Part.Circle(Vector(-287.5, 287.5, 0), Vector(0, 0, 1), 12.5), False)
sketch8.addGeometry(Part.Circle(Vector(-212.5, 287.5, 0), Vector(0, 0, 1), 12.5), False)
sketch8.addGeometry(Part.Circle(Vector(-287.5, 212.5, 0), Vector(0, 0, 1), 12.5), False)
sketch8.addGeometry(Part.Circle(Vector(-212.5, 212.5, 0), Vector(0, 0, 1), 12.5), False)
sketch8.addGeometry(Part.Circle(Vector(212.5, 287.5, 0), Vector(0, 0, 1), 12.5), False)
sketch8.addGeometry(Part.Circle(Vector(287.5, 287.5, 0), Vector(0, 0, 1), 12.5), False)
sketch8.addGeometry(Part.Circle(Vector(212.5, 212.5, 0), Vector(0, 0, 1), 12.5), False)
sketch8.addGeometry(Part.Circle(Vector(287.5, 212.5, 0), Vector(0, 0, 1), 12.5), False)
sketch8.addGeometry(Part.Circle(Vector(287.5, -287.5, 0), Vector(0, 0, 1), 12.5), False)
sketch8.addGeometry(Part.Circle(Vector(212.5, -287.5, 0), Vector(0, 0, 1), 12.5), False)
sketch8.addGeometry(Part.Circle(Vector(-212.5, -287.5, 0), Vector(0, 0, 1), 12.5), False)
sketch8.addGeometry(Part.Circle(Vector(-287.5, -287.5, 0), Vector(0, 0, 1), 12.5), False)
sketch8.addGeometry(Part.Circle(Vector(287.5, -212.5, 0), Vector(0, 0, 1), 12.5), False)
sketch8.addGeometry(Part.Circle(Vector(212.5, -212.5, 0), Vector(0, 0, 1), 12.5), False)
sketch8.addGeometry(Part.Circle(Vector(-212.5, -212.5, 0), Vector(0, 0, 1), 12.5), False)
sketch8.addGeometry(Part.Circle(Vector(-287.5, -212.5, 0), Vector(0, 0, 1), 12.5), False)
sketch8.addConstraint(Sketcher.Constraint("Equal", 0, 1))
sketch8.addConstraint(Sketcher.Constraint("Equal", 1, 2))
sketch8.addConstraint(Sketcher.Constraint("Equal", 2, 3))
sketch8.addConstraint(Sketcher.Constraint("Equal", 3, 4))
sketch8.addConstraint(Sketcher.Constraint("Equal", 4, 5))
sketch8.addConstraint(Sketcher.Constraint("Equal", 5, 6))
sketch8.addConstraint(Sketcher.Constraint("Equal", 6, 7))
sketch8.addConstraint(Sketcher.Constraint("Equal", 7, 8))
sketch8.addConstraint(Sketcher.Constraint("Equal", 8, 9))
sketch8.addConstraint(Sketcher.Constraint("Equal", 9, 10))
sketch8.addConstraint(Sketcher.Constraint("Equal", 10, 11))
sketch8.addConstraint(Sketcher.Constraint("Equal", 11, 12))
sketch8.addConstraint(Sketcher.Constraint("Equal", 12, 13))
sketch8.addConstraint(Sketcher.Constraint("Equal", 13, 14))
sketch8.addConstraint(Sketcher.Constraint("Equal", 14, 15))
sketch8.addConstraint(Sketcher.Constraint("Symmetric", 0, 3, 8, 3, -1, 1))
sketch8.addConstraint(Sketcher.Constraint("Symmetric", 1, 3, 9, 3, -1, 1))
sketch8.addConstraint(Sketcher.Constraint("Symmetric", 4, 3, 10, 3, -1, 1))
sketch8.addConstraint(Sketcher.Constraint("Symmetric", 5, 3, 11, 3, -1, 1))
sketch8.addConstraint(Sketcher.Constraint("Symmetric", 2, 3, 12, 3, -1, 1))
sketch8.addConstraint(Sketcher.Constraint("Symmetric", 3, 3, 13, 3, -1, 1))
sketch8.addConstraint(Sketcher.Constraint("Symmetric", 6, 3, 14, 3, -1, 1))
sketch8.addConstraint(Sketcher.Constraint("Symmetric", 7, 3, 15, 3, -1, 1))
sketch8.addConstraint(Sketcher.Constraint("Symmetric", 1, 3, 4, 3, -2))
sketch8.addConstraint(Sketcher.Constraint("Symmetric", 0, 3, 5, 3, -2))
sketch8.addConstraint(Sketcher.Constraint("Symmetric", 3, 3, 6, 3, -2))
sketch8.addConstraint(Sketcher.Constraint("Symmetric", 2, 3, 7, 3, -2))
sketch8.addConstraint(Sketcher.Constraint("Horizontal", 0, 3, 1, 3))
sketch8.addConstraint(Sketcher.Constraint("Horizontal", 2, 3, 3, 3))
sketch8.addConstraint(Sketcher.Constraint("Vertical", 0, 3, 2, 3))
sketch8.addConstraint(Sketcher.Constraint("Vertical", 1, 3, 3, 3))
sketch8.addConstraint(Sketcher.Constraint("Diameter", 0, Q("25 mm")))
sketch8.addConstraint(Sketcher.Constraint("DistanceX", 0, 3, 1, 3, Q("75 mm")))
sketch8.addConstraint(Sketcher.Constraint("DistanceY", 2, 3, 0, 3, Q("75 mm")))
sketch8.addConstraint(Sketcher.Constraint("DistanceX", 1, 3, 4, 3, Q("425 mm")))
sketch8.addConstraint(Sketcher.Constraint("DistanceY", 8, 3, 7, 3, Q("500 mm")))
pocket2 = doc.addObject("PartDesign::Pocket", "Pocket001")
body4.addObject(pocket2)
pocket2.Profile = sketch8
pocket2.Type = "ThroughAll"

doc.recompute()
